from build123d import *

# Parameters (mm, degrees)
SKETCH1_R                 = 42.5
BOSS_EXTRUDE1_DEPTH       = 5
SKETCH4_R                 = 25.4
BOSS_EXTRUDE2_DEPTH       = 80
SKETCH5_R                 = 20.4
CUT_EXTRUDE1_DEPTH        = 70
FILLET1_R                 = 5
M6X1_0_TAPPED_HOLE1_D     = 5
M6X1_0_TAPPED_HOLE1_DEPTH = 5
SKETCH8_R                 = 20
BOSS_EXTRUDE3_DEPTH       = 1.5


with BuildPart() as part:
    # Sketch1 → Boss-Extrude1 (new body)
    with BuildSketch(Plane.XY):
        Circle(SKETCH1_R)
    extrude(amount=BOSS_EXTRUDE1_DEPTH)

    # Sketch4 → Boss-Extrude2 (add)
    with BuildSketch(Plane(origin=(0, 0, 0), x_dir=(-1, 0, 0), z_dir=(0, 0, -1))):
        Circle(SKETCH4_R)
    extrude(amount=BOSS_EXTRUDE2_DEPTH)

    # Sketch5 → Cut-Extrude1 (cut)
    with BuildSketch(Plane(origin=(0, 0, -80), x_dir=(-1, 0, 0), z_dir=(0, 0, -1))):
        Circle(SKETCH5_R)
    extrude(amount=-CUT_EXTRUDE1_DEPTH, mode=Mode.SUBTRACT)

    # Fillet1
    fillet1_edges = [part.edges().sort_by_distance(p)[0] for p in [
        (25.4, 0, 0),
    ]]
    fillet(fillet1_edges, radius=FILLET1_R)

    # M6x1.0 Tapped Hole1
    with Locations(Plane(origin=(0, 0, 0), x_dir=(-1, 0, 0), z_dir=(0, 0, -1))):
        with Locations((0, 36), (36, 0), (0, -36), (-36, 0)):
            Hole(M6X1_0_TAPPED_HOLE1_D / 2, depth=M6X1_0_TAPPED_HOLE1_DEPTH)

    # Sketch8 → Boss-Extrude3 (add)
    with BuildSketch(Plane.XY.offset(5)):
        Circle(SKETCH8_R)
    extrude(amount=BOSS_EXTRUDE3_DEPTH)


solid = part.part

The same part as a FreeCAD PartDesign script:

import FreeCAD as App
import Part
import Sketcher
from FreeCAD import Vector


def edges_at(feature, points):
    """Names of the edges that pass closest to the given points."""
    edges = feature.Shape.Edges
    near = lambda p: min(range(len(edges)), key=lambda i: edges[i].distToShape(Part.Vertex(*p))[0])
    return sorted({f"Edge{near(p) + 1}" for p in points})

doc = App.newDocument("Part")
body = doc.addObject("PartDesign::Body", "Body")

# Sketch on XY plane
sketch1 = body.newObject("Sketcher::SketchObject", "Sketch")
sketch1.AttachmentSupport = (doc.getObject("XY_Plane"), [""])
sketch1.MapMode = "FlatFace"
sketch1.addGeometry(Part.Circle(Vector(0, 0, 0), Vector(0, 0, 1), 42.5), False)
sketch1.addConstraint([
    Sketcher.Constraint("Coincident", 0, 3, -1, 1),
    Sketcher.Constraint("Diameter", 0, 85.0),
])
pad1 = body.newObject("PartDesign::Pad", "Pad")
pad1.Profile = sketch1
pad1.Length = 5

# Sketch on XY plane
sketch2 = body.newObject("Sketcher::SketchObject", "Sketch001")
sketch2.AttachmentSupport = (doc.getObject("XY_Plane"), [""])
sketch2.MapMode = "FlatFace"
sketch2.addGeometry(Part.Circle(Vector(0, 0, 0), Vector(0, 0, 1), 25.4), False)
sketch2.addConstraint([
    Sketcher.Constraint("Coincident", 0, 3, -1, 1),
    Sketcher.Constraint("Diameter", 0, 50.8),
])
pad2 = body.newObject("PartDesign::Pad", "Pad001")
pad2.Profile = sketch2
pad2.Length = 80
pad2.Reversed = True

# Sketch on XY plane
sketch3 = body.newObject("Sketcher::SketchObject", "Sketch002")
sketch3.AttachmentSupport = (doc.getObject("XY_Plane"), [""])
sketch3.MapMode = "FlatFace"
sketch3.AttachmentOffset = App.Placement(Vector(0, 0, -80), App.Rotation())
sketch3.addGeometry(Part.Circle(Vector(0, 0, 0), Vector(0, 0, 1), 20.4), False)
sketch3.addConstraint([
    Sketcher.Constraint("Coincident", 0, 3, -1, 1),
    Sketcher.Constraint("Diameter", 0, 40.8),
])
pocket1 = body.newObject("PartDesign::Pocket", "Pocket")
pocket1.Profile = sketch3
pocket1.Length = 70
pocket1.Reversed = True
doc.recompute()

fillet = body.newObject("PartDesign::Fillet", "Fillet")
fillet.Base = (pocket1, edges_at(pocket1, [(25.4, 0, 0)]))
fillet.Radius = 5

# Sketch on XY plane
sketch4 = body.newObject("Sketcher::SketchObject", "Sketch003")
sketch4.AttachmentSupport = (doc.getObject("XY_Plane"), [""])
sketch4.MapMode = "FlatFace"
sketch4.addGeometry([
    Part.Circle(Vector(0, 36, 0), Vector(0, 0, 1), 2.5),
    Part.Circle(Vector(-36, 0, 0), Vector(0, 0, 1), 2.5),
    Part.Circle(Vector(0, -36, 0), Vector(0, 0, 1), 2.5),
    Part.Circle(Vector(36, 0, 0), Vector(0, 0, 1), 2.5),
], False)
sketch4.addConstraint([
    Sketcher.Constraint("Equal", 0, 1),
    Sketcher.Constraint("Equal", 1, 2),
    Sketcher.Constraint("Equal", 2, 3),
    Sketcher.Constraint("Symmetric", 0, 3, 2, 3, -1, 1),
    Sketcher.Constraint("Symmetric", 1, 3, 3, 3, -1, 1),
    Sketcher.Constraint("PointOnObject", 0, 3, -2),
    Sketcher.Constraint("PointOnObject", 1, 3, -1),
    Sketcher.Constraint("Diameter", 0, 5.0),
    Sketcher.Constraint("DistanceY", -1, 1, 0, 3, 36.0),
    Sketcher.Constraint("DistanceX", 1, 3, -1, 1, 36.0),
])
doc.recompute()
hole = body.newObject("PartDesign::Hole", "Hole")
hole.Profile = sketch4
hole.ThreadType = "None"
hole.Diameter = 5
hole.DepthType = "Dimension"
hole.Depth = 5
hole.DrillPoint = "Flat"
hole.Reversed = True

# Sketch on XY plane
sketch5 = body.newObject("Sketcher::SketchObject", "Sketch004")
sketch5.AttachmentSupport = (doc.getObject("XY_Plane"), [""])
sketch5.MapMode = "FlatFace"
sketch5.AttachmentOffset = App.Placement(Vector(0, 0, 5), App.Rotation())
sketch5.addGeometry(Part.Circle(Vector(0, 0, 0), Vector(0, 0, 1), 20), False)
sketch5.addConstraint([
    Sketcher.Constraint("Coincident", 0, 3, -1, 1),
    Sketcher.Constraint("Diameter", 0, 40.0),
])
pad3 = body.newObject("PartDesign::Pad", "Pad002")
pad3.Profile = sketch5
pad3.Length = 1.5

doc.recompute()
